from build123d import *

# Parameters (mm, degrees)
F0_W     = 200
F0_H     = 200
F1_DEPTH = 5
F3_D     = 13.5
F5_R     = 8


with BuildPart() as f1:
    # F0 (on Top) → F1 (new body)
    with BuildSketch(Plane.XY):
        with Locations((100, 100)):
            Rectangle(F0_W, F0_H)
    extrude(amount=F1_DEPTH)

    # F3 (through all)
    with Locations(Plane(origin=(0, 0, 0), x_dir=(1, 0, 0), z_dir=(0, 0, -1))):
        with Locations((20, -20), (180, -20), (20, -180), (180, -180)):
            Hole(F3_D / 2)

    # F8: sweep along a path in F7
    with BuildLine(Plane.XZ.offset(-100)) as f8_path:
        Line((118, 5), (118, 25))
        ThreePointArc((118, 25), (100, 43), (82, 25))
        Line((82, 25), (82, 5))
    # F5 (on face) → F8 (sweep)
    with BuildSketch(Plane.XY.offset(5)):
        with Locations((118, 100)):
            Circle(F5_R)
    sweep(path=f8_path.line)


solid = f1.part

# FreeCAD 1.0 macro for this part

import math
import FreeCAD as App
import Part
import Sketcher


def add_polygon(sketch, points):
    """Adds a closed chain of lines whose ends are joined by coincident constraints."""
    first, n = sketch.GeometryCount, len(points)
    for a, b in zip(points, points[1:] + points[:1]):
        sketch.addGeometry(Part.LineSegment(App.Vector(*a, 0), App.Vector(*b, 0)), False)
    for i in range(n):
        sketch.addConstraint(Sketcher.Constraint("Coincident", first + i, 2, first + (i + 1) % n, 1))

doc = App.newDocument("Part")
body = doc.addObject("PartDesign::Body", "Body")

# Sketch on XY plane
sketch1 = doc.addObject("Sketcher::SketchObject", "Sketch")
body.addObject(sketch1)
sketch1.AttachmentSupport = (doc.XY_Plane, [""])
sketch1.MapMode = "FlatFace"
add_polygon(sketch1, [(0, 200), (0, 0), (200, 0), (200, 200)])  # lines 0-3
sketch1.addConstraint([
    Sketcher.Constraint("Vertical", 0),
    Sketcher.Constraint("Horizontal", 1),
    Sketcher.Constraint("Vertical", 2),
    Sketcher.Constraint("Horizontal", 3),
    Sketcher.Constraint("Coincident", 0, 2, -1, 1),
    Sketcher.Constraint("Equal", 3, 0),
    Sketcher.Constraint("DistanceX", 1, 1, 1, 2, 200.0),
])
pad1 = doc.addObject("PartDesign::Pad", "Pad")
body.addObject(pad1)
pad1.Profile = sketch1
pad1.Length = 5

# Sketch on XY plane
sketch2 = doc.addObject("Sketcher::SketchObject", "Sketch001")
body.addObject(sketch2)
sketch2.AttachmentSupport = (doc.XY_Plane, [""])
sketch2.MapMode = "FlatFace"
sketch2.addGeometry([
    Part.Circle(App.Vector(20, 20, 0), App.Vector(0, 0, 1), 7),
    Part.Circle(App.Vector(180, 20, 0), App.Vector(0, 0, 1), 7),
    Part.Circle(App.Vector(20, 180, 0), App.Vector(0, 0, 1), 7),
    Part.Circle(App.Vector(180, 180, 0), App.Vector(0, 0, 1), 7),
], False)
sketch2.addConstraint([
    Sketcher.Constraint("Equal", 0, 1),
    Sketcher.Constraint("Equal", 1, 2),
    Sketcher.Constraint("Equal", 2, 3),
    Sketcher.Constraint("Horizontal", 0, 3, 1, 3),
    Sketcher.Constraint("Horizontal", 2, 3, 3, 3),
    Sketcher.Constraint("Vertical", 0, 3, 2, 3),
    Sketcher.Constraint("Vertical", 1, 3, 3, 3),
    Sketcher.Constraint("Diameter", 0, 13.5),
    Sketcher.Constraint("DistanceX", -1, 1, 0, 3, 20.0),
    Sketcher.Constraint("DistanceY", -1, 1, 0, 3, 20.0),
    Sketcher.Constraint("DistanceX", -1, 1, 1, 3, 180.0),
    Sketcher.Constraint("DistanceY", -1, 1, 2, 3, 180.0),
])
doc.recompute()
hole = doc.addObject("PartDesign::Hole", "Hole")
body.addObject(hole)
hole.Profile = sketch2
hole.ThreadType = "None"
hole.Diameter = 13.5
hole.DepthType = "ThroughAll"
hole.Reversed = True

# Sketch on XY plane
sketch3 = doc.addObject("Sketcher::SketchObject", "Sketch002")
body.addObject(sketch3)
sketch3.AttachmentSupport = (doc.XY_Plane, [""])
sketch3.MapMode = "FlatFace"
sketch3.AttachmentOffset = App.Placement(App.Vector(0, 0, 5), App.Rotation())
sketch3.addGeometry(Part.Circle(App.Vector(118, 100, 0), App.Vector(0, 0, 1), 8), False)
sketch3.addConstraint([
    Sketcher.Constraint("Diameter", 0, 16.0),
    Sketcher.Constraint("DistanceX", -1, 1, 0, 3, 118.0),
    Sketcher.Constraint("DistanceY", -1, 1, 0, 3, 100.0),
])

# Sketch on XZ plane
sketch4 = doc.addObject("Sketcher::SketchObject", "Sketch003")
body.addObject(sketch4)
sketch4.AttachmentSupport = (doc.XZ_Plane, [""])
sketch4.MapMode = "FlatFace"
sketch4.AttachmentOffset = App.Placement(App.Vector(0, 0, -100), App.Rotation())
sketch4.addGeometry([
    Part.LineSegment(App.Vector(118, 5, 0), App.Vector(118, 25, 0)),
    Part.ArcOfCircle(Part.Circle(App.Vector(100, 25, 0), App.Vector(0, 0, 1), 18), math.radians(0), math.radians(180)),
    Part.LineSegment(App.Vector(82, 25, 0), App.Vector(82, 5, 0)),
], False)
sketch4.addConstraint([
    Sketcher.Constraint("Tangent", 0, 2, 1, 1),
    Sketcher.Constraint("Tangent", 1, 2, 2, 1),
    Sketcher.Constraint("Vertical", 0),
    Sketcher.Constraint("Vertical", 2),
    Sketcher.Constraint("Horizontal", 0, 1, 2, 2),
    Sketcher.Constraint("Radius", 1, 18.0),
    Sketcher.Constraint("DistanceY", 0, 1, 0, 2, 20.0),
    Sketcher.Constraint("DistanceX", -1, 1, 1, 3, 100.0),
    Sketcher.Constraint("DistanceY", -1, 1, 1, 3, 25.0),
])
doc.recompute()

additivepipe = doc.addObject("PartDesign::AdditivePipe", "AdditivePipe")
body.addObject(additivepipe)
additivepipe.Profile = sketch3
additivepipe.Spine = (sketch4, ["Edge1", "Edge2", "Edge3"])

doc.recompute()
